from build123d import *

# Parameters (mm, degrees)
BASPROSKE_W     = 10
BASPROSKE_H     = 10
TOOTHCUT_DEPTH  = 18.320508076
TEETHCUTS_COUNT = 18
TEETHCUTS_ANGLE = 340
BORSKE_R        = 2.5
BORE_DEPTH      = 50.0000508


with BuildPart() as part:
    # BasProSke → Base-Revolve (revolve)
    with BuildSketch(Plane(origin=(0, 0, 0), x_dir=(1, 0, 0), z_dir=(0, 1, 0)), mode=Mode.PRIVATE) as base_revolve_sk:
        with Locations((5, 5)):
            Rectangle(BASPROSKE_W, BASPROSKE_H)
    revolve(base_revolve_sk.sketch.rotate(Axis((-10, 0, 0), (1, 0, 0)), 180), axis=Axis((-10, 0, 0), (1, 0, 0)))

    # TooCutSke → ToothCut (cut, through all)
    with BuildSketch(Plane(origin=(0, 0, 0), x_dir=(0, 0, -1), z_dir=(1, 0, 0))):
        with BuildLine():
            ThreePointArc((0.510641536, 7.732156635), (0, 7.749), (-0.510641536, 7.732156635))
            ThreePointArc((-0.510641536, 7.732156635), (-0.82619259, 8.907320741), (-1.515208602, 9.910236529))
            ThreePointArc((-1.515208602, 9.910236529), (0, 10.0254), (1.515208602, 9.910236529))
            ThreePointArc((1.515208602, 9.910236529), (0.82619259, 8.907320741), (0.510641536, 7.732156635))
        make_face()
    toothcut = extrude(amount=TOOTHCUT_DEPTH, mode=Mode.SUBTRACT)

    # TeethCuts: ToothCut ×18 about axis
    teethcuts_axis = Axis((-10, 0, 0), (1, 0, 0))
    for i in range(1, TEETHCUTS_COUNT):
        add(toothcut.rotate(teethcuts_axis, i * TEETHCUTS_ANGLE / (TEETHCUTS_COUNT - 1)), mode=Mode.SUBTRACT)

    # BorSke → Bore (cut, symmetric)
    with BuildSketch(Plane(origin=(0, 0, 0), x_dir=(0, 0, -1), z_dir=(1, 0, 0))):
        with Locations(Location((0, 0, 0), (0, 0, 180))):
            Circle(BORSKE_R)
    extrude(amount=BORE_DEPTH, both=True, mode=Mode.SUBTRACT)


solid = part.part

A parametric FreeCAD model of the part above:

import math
import FreeCAD as App
import Part
import Sketcher

V = App.Vector
Q = App.Units.Quantity


def add_polygon(sketch, points):
    """Adds a closed chain of lines whose ends are joined by coincident constraints."""
    first, n = sketch.GeometryCount, len(points)
    for a, b in zip(points, points[1:] + points[:1]):
        sketch.addGeometry(Part.LineSegment(App.Vector(*a, 0), App.Vector(*b, 0)), False)
    for i in range(n):
        sketch.addConstraint(Sketcher.Constraint("Coincident", first + i, 2, first + (i + 1) % n, 1))

doc = App.newDocument("Part")
body = doc.addObject("PartDesign::Body", "Body")

# Sketch on XZ plane
sketch1 = body.newObject("Sketcher::SketchObject", "Sketch")
sketch1.AttachmentSupport = (doc.getObject("XZ_Plane"), [""])
sketch1.MapMode = "FlatFace"
add_polygon(sketch1, [(0, -10), (0, 0), (10, 0), (10, -10)])  # lines 0-3
sketch1.addConstraint(Sketcher.Constraint("Vertical", 0))
sketch1.addConstraint(Sketcher.Constraint("Horizontal", 1))
sketch1.addConstraint(Sketcher.Constraint("Vertical", 2))
sketch1.addConstraint(Sketcher.Constraint("Horizontal", 3))
sketch1.addConstraint(Sketcher.Constraint("Coincident", 0, 2, -1, 1))
sketch1.addConstraint(Sketcher.Constraint("Equal", 3, 0))
sketch1.addConstraint(Sketcher.Constraint("DistanceX", 1, 1, 1, 2, Q("10 mm")))
revolution = body.newObject("PartDesign::Revolution", "Revolution")
revolution.Profile = sketch1
revolution.ReferenceAxis = (sketch1, ["H_Axis"])
revolution.Angle = 360

# Sketch on YZ plane
sketch2 = body.newObject("Sketcher::SketchObject", "Sketch001")
sketch2.AttachmentSupport = (doc.getObject("YZ_Plane"), [""])
sketch2.MapMode = "FlatFace"
sketch2.addGeometry(Part.ArcOfCircle(Part.Circle(V(0, 0, 0), V(0, 0, 1), 7.7), math.radians(-3.78), math.radians(3.78)), False)
sketch2.addGeometry(Part.ArcOfCircle(Part.Circle(V(7.4, -4.1, 0), V(0, 0, 1), 3.6), math.radians(46), math.radians(85)), False)
sketch2.addGeometry(Part.ArcOfCircle(Part.Circle(V(0, 0, 0), V(0, 0, 1), 10), math.radians(-8.69), math.radians(8.69)), False)
sketch2.addGeometry(Part.ArcOfCircle(Part.Circle(V(7.4, 4.1, 0), V(0, 0, 1), 3.6), math.radians(-85), math.radians(-46)), False)
sketch2.addConstraint(Sketcher.Constraint("Coincident", 0, 1, 1, 2))
sketch2.addConstraint(Sketcher.Constraint("Coincident", 1, 1, 2, 1))
sketch2.addConstraint(Sketcher.Constraint("Coincident", 2, 2, 3, 2))
sketch2.addConstraint(Sketcher.Constraint("Coincident", 3, 1, 0, 2))
sketch2.addConstraint(Sketcher.Constraint("Coincident", 0, 3, -1, 1))
sketch2.addConstraint(Sketcher.Constraint("Coincident", 2, 3, -1, 1))
sketch2.addConstraint(Sketcher.Constraint("Equal", 1, 3))
sketch2.addConstraint(Sketcher.Constraint("Symmetric", 1, 3, 3, 3, -1))
sketch2.addConstraint(Sketcher.Constraint("Radius", 1, Q("3.6 mm")))
sketch2.addConstraint(Sketcher.Constraint("Radius", 0, Q("7.749 mm")))
sketch2.addConstraint(Sketcher.Constraint("Radius", 2, Q("10.0254 mm")))
sketch2.addConstraint(Sketcher.Constraint("DistanceX", -1, 1, 1, 3, Q("7.399578 mm")))
sketch2.addConstraint(Sketcher.Constraint("DistanceY", 0, 1, -1, 1, Q("0.510642 mm")))
pocket1 = body.newObject("PartDesign::Pocket", "Pocket")
pocket1.Profile = sketch2
pocket1.Type = "ThroughAll"
pocket1.Reversed = True
doc.recompute()

polarpattern = body.newObject("PartDesign::PolarPattern", "PolarPattern")
polarpattern.Originals = [pocket1]
polarpattern.Axis = (doc.getObject("X_Axis"), [""])
polarpattern.Angle = 360
polarpattern.Occurrences = 18
body.Tip = polarpattern

# Sketch on YZ plane
sketch3 = body.newObject("Sketcher::SketchObject", "Sketch002")
sketch3.AttachmentSupport = (doc.getObject("YZ_Plane"), [""])
sketch3.MapMode = "FlatFace"
sketch3.addGeometry(Part.Circle(V(0, 0, 0), V(0, 0, 1), 2.5), False)
sketch3.addConstraint(Sketcher.Constraint("Coincident", 0, 3, -1, 1))
sketch3.addConstraint(Sketcher.Constraint("Diameter", 0, Q("5 mm")))
pocket2 = body.newObject("PartDesign::Pocket", "Pocket001")
pocket2.Profile = sketch3
pocket2.Length = 100.000102
pocket2.Midplane = True

doc.recompute()
